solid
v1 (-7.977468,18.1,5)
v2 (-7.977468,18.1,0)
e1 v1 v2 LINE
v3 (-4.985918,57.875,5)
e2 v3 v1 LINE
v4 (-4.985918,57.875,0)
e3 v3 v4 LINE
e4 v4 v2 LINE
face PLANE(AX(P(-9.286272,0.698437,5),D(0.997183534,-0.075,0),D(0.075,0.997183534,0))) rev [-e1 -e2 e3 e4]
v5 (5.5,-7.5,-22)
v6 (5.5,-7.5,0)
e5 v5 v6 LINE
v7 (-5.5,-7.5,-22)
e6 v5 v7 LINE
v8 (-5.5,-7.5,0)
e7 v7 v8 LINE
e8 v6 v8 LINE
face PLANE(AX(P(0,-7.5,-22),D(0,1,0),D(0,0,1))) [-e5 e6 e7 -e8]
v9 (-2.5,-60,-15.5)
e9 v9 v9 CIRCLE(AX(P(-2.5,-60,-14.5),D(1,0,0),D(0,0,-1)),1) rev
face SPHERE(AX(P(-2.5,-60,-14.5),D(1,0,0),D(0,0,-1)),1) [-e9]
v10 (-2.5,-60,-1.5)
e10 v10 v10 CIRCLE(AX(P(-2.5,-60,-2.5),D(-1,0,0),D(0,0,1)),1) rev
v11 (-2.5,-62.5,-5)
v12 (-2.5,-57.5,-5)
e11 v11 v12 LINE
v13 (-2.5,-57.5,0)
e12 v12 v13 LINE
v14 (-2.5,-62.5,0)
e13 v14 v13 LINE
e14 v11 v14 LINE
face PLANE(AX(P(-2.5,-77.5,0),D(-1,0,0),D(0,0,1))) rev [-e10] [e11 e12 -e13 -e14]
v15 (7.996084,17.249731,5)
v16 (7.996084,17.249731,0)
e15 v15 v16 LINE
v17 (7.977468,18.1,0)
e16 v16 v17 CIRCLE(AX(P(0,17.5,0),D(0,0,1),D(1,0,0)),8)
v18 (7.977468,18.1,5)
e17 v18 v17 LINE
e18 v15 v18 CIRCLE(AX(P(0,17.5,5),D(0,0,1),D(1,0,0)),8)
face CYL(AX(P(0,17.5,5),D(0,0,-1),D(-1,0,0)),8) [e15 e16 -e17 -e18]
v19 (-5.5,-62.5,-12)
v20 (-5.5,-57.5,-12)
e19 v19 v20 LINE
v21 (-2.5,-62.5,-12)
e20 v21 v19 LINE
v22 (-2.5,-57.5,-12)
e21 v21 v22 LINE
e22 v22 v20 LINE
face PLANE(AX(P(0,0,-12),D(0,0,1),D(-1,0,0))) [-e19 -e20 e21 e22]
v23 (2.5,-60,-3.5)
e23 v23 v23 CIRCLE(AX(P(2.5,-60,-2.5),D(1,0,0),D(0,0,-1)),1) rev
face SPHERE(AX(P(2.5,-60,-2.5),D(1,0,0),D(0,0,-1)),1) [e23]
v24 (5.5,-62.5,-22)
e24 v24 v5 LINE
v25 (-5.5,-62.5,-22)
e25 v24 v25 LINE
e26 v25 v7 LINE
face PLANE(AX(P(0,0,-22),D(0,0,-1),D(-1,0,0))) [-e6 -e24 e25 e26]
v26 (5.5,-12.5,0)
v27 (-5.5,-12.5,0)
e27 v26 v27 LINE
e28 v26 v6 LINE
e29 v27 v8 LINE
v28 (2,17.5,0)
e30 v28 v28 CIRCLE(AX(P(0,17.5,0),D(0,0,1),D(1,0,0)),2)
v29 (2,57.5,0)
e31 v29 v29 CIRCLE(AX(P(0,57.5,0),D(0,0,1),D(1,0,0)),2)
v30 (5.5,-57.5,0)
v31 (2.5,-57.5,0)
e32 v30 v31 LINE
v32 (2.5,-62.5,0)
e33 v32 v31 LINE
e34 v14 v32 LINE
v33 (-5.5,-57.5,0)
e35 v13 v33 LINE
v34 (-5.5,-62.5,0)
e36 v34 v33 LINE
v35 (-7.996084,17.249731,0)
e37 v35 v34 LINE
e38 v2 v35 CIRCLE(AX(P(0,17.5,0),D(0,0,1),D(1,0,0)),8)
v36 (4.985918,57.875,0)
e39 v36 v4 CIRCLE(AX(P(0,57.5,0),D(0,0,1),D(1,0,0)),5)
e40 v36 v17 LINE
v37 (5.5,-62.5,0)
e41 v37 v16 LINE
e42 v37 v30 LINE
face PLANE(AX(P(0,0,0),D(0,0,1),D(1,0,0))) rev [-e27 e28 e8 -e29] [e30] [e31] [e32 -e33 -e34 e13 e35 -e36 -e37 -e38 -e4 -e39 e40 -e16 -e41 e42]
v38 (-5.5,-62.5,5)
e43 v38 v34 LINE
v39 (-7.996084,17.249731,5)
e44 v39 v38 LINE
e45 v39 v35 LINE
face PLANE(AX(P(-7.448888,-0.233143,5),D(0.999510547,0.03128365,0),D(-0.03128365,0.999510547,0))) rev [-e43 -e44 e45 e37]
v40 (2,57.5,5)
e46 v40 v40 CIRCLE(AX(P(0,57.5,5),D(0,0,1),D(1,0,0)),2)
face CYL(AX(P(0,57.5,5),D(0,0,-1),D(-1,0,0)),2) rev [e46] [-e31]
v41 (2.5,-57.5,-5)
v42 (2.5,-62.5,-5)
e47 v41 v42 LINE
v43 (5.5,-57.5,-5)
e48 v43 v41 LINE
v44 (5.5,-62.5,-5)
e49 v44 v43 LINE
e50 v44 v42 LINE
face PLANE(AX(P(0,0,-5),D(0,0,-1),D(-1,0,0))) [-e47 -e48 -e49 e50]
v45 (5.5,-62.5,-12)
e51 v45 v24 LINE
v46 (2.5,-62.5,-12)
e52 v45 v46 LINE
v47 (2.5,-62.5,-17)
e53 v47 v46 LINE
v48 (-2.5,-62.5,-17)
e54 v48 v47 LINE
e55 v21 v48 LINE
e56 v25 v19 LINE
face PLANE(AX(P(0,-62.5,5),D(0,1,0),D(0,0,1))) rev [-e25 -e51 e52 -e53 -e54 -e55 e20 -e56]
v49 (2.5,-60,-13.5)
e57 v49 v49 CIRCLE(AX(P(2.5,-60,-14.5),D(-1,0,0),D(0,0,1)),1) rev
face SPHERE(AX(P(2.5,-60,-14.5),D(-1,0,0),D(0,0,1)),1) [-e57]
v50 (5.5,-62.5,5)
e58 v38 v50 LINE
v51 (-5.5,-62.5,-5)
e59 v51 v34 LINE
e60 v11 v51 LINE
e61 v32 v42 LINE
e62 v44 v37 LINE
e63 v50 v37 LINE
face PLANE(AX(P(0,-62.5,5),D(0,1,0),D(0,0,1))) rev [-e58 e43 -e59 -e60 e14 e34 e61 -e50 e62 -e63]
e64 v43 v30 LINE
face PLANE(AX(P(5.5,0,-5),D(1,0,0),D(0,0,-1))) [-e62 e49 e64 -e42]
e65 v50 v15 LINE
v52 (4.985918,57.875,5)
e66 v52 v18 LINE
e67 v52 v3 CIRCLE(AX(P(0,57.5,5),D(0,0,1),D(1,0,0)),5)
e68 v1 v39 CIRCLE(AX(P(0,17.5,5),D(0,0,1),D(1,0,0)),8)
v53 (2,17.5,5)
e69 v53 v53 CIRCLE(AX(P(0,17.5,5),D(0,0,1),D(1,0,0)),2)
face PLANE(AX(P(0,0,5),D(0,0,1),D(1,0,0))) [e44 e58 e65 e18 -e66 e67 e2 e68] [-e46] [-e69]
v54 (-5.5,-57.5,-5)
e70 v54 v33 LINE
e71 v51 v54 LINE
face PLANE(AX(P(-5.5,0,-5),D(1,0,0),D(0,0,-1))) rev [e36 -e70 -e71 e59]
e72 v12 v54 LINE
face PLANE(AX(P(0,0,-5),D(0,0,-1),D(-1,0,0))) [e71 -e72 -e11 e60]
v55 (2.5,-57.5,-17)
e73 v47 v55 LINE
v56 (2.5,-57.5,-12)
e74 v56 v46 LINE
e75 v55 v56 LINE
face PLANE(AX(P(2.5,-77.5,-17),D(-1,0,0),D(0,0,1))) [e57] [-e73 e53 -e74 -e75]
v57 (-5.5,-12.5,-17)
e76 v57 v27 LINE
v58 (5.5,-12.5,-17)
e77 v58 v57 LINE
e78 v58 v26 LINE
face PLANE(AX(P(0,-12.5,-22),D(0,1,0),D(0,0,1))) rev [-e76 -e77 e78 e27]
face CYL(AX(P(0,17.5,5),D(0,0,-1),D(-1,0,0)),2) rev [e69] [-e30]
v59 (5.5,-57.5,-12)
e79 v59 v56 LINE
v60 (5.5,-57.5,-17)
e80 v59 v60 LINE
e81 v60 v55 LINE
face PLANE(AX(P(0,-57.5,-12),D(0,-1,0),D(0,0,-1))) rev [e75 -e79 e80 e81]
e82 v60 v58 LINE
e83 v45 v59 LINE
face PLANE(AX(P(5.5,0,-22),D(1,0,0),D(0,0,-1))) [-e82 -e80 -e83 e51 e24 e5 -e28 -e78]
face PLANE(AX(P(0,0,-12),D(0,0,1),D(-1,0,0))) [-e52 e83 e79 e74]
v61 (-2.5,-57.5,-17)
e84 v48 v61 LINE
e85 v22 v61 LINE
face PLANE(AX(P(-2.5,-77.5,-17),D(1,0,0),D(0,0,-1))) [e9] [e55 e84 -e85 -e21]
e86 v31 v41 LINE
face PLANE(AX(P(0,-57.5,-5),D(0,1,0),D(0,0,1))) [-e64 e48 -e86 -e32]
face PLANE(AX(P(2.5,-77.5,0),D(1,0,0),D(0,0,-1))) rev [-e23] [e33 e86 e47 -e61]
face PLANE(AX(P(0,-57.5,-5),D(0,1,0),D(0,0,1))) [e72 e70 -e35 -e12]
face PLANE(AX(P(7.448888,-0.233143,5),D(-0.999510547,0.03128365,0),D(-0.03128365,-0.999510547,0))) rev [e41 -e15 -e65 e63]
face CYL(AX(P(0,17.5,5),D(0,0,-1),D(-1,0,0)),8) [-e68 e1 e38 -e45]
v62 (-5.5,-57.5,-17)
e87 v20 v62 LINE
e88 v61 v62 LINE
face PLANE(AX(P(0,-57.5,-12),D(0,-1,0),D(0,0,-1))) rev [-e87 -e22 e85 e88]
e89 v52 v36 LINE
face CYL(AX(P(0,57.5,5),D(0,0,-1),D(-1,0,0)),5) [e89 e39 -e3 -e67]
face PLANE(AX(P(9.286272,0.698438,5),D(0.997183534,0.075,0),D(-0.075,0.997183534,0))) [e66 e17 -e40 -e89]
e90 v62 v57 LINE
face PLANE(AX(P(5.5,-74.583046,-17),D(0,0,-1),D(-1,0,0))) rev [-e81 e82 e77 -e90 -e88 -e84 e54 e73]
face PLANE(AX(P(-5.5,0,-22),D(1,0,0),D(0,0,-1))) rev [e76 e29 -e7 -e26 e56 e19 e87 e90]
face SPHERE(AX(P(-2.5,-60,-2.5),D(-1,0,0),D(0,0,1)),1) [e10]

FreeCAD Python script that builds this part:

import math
import FreeCAD as App
import Part
import Sketcher

V = App.Vector


def add_polygon(sketch, points):
    """Adds a closed chain of lines whose ends are joined by coincident constraints."""
    first, n = sketch.GeometryCount, len(points)
    for a, b in zip(points, points[1:] + points[:1]):
        sketch.addGeometry(Part.LineSegment(App.Vector(*a, 0), App.Vector(*b, 0)), False)
    for i in range(n):
        sketch.addConstraint(Sketcher.Constraint("Coincident", first + i, 2, first + (i + 1) % n, 1))

doc = App.newDocument("Part")
body = doc.addObject("PartDesign::Body", "Body")

# Sketch on XY plane
sketch1 = doc.addObject("Sketcher::SketchObject", "Sketch")
body.addObject(sketch1)
sketch1.AttachmentSupport = (doc.XY_Plane, [""])
sketch1.MapMode = "FlatFace"
sketch1.addGeometry(Part.LineSegment(V(-7.996084, 17.249731, 0), V(-5.5, -62.5, 0)), False)
sketch1.addGeometry(Part.LineSegment(V(-5.5, -62.5, 0), V(5.5, -62.5, 0)), False)
sketch1.addGeometry(Part.LineSegment(V(5.5, -62.5, 0), V(7.996084, 17.249731, 0)), False)
sketch1.addGeometry(Part.ArcOfCircle(Part.Circle(V(0.000001, 17.5, 0), V(0, 0, 1), 7.999999), math.radians(-1.792714), math.radians(0)), False)
sketch1.addGeometry(Part.ArcOfCircle(Part.Circle(V(0, 17.5, 0), V(0, 0, 1), 8), math.radians(0), math.radians(4.301222)), False)
sketch1.addGeometry(Part.LineSegment(V(7.977468, 18.1, 0), V(4.985918, 57.875, 0)), False)
sketch1.addGeometry(Part.ArcOfCircle(Part.Circle(V(0, 57.5, 0), V(0, 0, 1), 5), math.radians(4.301222), math.radians(175.698778)), False)
sketch1.addGeometry(Part.LineSegment(V(-4.985918, 57.875, 0), V(-7.977468, 18.1, 0)), False)
sketch1.addGeometry(Part.ArcOfCircle(Part.Circle(V(0, 17.5, 0), V(0, 0, 1), 8), math.radians(175.698778), math.radians(181.792714)), False)
sketch1.addGeometry(Part.Circle(V(0, 17.5, 0), V(0, 0, 1), 2), False)
sketch1.addGeometry(Part.Circle(V(0, 57.5, 0), V(0, 0, 1), 2), False)
sketch1.addConstraint(Sketcher.Constraint("Coincident", 0, 2, 1, 1))
sketch1.addConstraint(Sketcher.Constraint("Coincident", 1, 2, 2, 1))
sketch1.addConstraint(Sketcher.Constraint("Tangent", 2, 2, 3, 1))
sketch1.addConstraint(Sketcher.Constraint("Tangent", 3, 2, 4, 1))
sketch1.addConstraint(Sketcher.Constraint("Tangent", 4, 2, 5, 1))
sketch1.addConstraint(Sketcher.Constraint("Tangent", 5, 2, 6, 1))
sketch1.addConstraint(Sketcher.Constraint("Tangent", 6, 2, 7, 1))
sketch1.addConstraint(Sketcher.Constraint("Tangent", 7, 2, 8, 1))
sketch1.addConstraint(Sketcher.Constraint("Tangent", 8, 2, 0, 1))
sketch1.addConstraint(Sketcher.Constraint("Horizontal", 1))
sketch1.addConstraint(Sketcher.Constraint("Coincident", 8, 3, 3, 3))
sketch1.addConstraint(Sketcher.Constraint("Coincident", 9, 3, 3, 3))
sketch1.addConstraint(Sketcher.Constraint("Coincident", 10, 3, 6, 3))
sketch1.addConstraint(Sketcher.Constraint("Equal", 3, 4))
sketch1.addConstraint(Sketcher.Constraint("Equal", 4, 8))
sketch1.addConstraint(Sketcher.Constraint("Equal", 9, 10))
sketch1.addConstraint(Sketcher.Constraint("Symmetric", 5, 2, 6, 2, -2))
sketch1.addConstraint(Sketcher.Constraint("Horizontal", 9, 3, 3, 2))
sketch1.addConstraint(Sketcher.Constraint("Horizontal", 2, 2, 8, 2))
sketch1.addConstraint(Sketcher.Constraint("Diameter", 9, 4.0))
sketch1.addConstraint(Sketcher.Constraint("Radius", 3, 7.999999))
sketch1.addConstraint(Sketcher.Constraint("Radius", 6, 5.0))
sketch1.addConstraint(Sketcher.Constraint("DistanceX", 1, 1, 1, 2, 11.0))
sketch1.addConstraint(Sketcher.Constraint("DistanceY", 4, 3, 6, 3, 40.0))
sketch1.addConstraint(Sketcher.Constraint("DistanceY", 0, 2, 9, 3, 80.0))
sketch1.addConstraint(Sketcher.Constraint("DistanceY", -1, 1, 3, 3, 17.5))
pad1 = doc.addObject("PartDesign::Pad", "Pad")
body.addObject(pad1)
pad1.Profile = sketch1
pad1.Length = 5

# Sketch on XY plane
sketch2 = doc.addObject("Sketcher::SketchObject", "Sketch001")
body.addObject(sketch2)
sketch2.AttachmentSupport = (doc.XY_Plane, [""])
sketch2.MapMode = "FlatFace"
add_polygon(sketch2, [(5.5, -57.5), (5.5, -62.5), (-5.5, -62.5), (-5.5, -57.5)])  # lines 0-3
sketch2.addConstraint(Sketcher.Constraint("Vertical", 0))
sketch2.addConstraint(Sketcher.Constraint("Horizontal", 1))
sketch2.addConstraint(Sketcher.Constraint("Vertical", 2))
sketch2.addConstraint(Sketcher.Constraint("Horizontal", 3))
sketch2.addConstraint(Sketcher.Constraint("DistanceX", 1, 2, 1, 1, 11.0))
sketch2.addConstraint(Sketcher.Constraint("DistanceY", 0, 2, 0, 1, 5.0))
sketch2.addConstraint(Sketcher.Constraint("DistanceX", -1, 1, 0, 2, 5.5))
sketch2.addConstraint(Sketcher.Constraint("DistanceY", 0, 2, -1, 1, 62.5))
pad2 = doc.addObject("PartDesign::Pad", "Pad001")
body.addObject(pad2)
pad2.Profile = sketch2
pad2.Length = 5
pad2.Reversed = True

# Sketch on XY plane
sketch3 = doc.addObject("Sketcher::SketchObject", "Sketch002")
body.addObject(sketch3)
sketch3.AttachmentSupport = (doc.XY_Plane, [""])
sketch3.MapMode = "FlatFace"
add_polygon(sketch3, [(5.5, -7.5), (5.5, -12.5), (-5.5, -12.5), (-5.5, -7.5)])  # lines 0-3
sketch3.addConstraint(Sketcher.Constraint("Vertical", 0))
sketch3.addConstraint(Sketcher.Constraint("Horizontal", 1))
sketch3.addConstraint(Sketcher.Constraint("Vertical", 2))
sketch3.addConstraint(Sketcher.Constraint("Horizontal", 3))
sketch3.addConstraint(Sketcher.Constraint("DistanceX", 1, 2, 1, 1, 11.0))
sketch3.addConstraint(Sketcher.Constraint("DistanceY", 0, 2, 0, 1, 5.0))
sketch3.addConstraint(Sketcher.Constraint("DistanceX", -1, 1, 0, 2, 5.5))
sketch3.addConstraint(Sketcher.Constraint("DistanceY", 0, 2, -1, 1, 12.5))
pad3 = doc.addObject("PartDesign::Pad", "Pad002")
body.addObject(pad3)
pad3.Profile = sketch3
pad3.Length = 22
pad3.Reversed = True

# Sketch on XZ plane
sketch4 = doc.addObject("Sketcher::SketchObject", "Sketch003")
body.addObject(sketch4)
sketch4.AttachmentSupport = (doc.XZ_Plane, [""])
sketch4.MapMode = "FlatFace"
sketch4.AttachmentOffset = App.Placement(V(0, 0, 57.5), App.Rotation())
add_polygon(sketch4, [(-2.5, -5), (-2.5, 0), (2.5, 0), (2.5, -5)])  # lines 0-3
sketch4.addConstraint(Sketcher.Constraint("Vertical", 0))
sketch4.addConstraint(Sketcher.Constraint("Horizontal", 1))
sketch4.addConstraint(Sketcher.Constraint("Vertical", 2))
sketch4.addConstraint(Sketcher.Constraint("Horizontal", 3))
sketch4.addConstraint(Sketcher.Constraint("Symmetric", 0, 2, 1, 2, -1, 1))
sketch4.addConstraint(Sketcher.Constraint("Equal", 3, 0))
sketch4.addConstraint(Sketcher.Constraint("DistanceX", 1, 1, 1, 2, 5.0))
pocket1 = doc.addObject("PartDesign::Pocket", "Pocket")
body.addObject(pocket1)
pocket1.Profile = sketch4
pocket1.Length = 20
pocket1.Reversed = True

# Sketch on YZ plane
sketch5 = doc.addObject("Sketcher::SketchObject", "Sketch004")
body.addObject(sketch5)
sketch5.AttachmentSupport = (doc.YZ_Plane, [""])
sketch5.MapMode = "FlatFace"
sketch5.AttachmentOffset = App.Placement(V(0, 0, 2.5), App.Rotation())
sketch5.addGeometry(Part.LineSegment(V(-60, -1.5, 0), V(-60, -3.5, 0)), False)
sketch5.addGeometry(Part.ArcOfCircle(Part.Circle(V(-60, -2.5, 0), V(0, 0, 1), 1), math.radians(90), math.radians(270)), False)
sketch5.addGeometry(Part.LineSegment(V(-60, -1.5, 0), V(-60, -3.5, 0)), True)  # axis
sketch5.addConstraint(Sketcher.Constraint("Coincident", 0, 1, 1, 1))
sketch5.addConstraint(Sketcher.Constraint("Coincident", 1, 2, 0, 2))
sketch5.addConstraint(Sketcher.Constraint("Vertical", 0))
sketch5.addConstraint(Sketcher.Constraint("Vertical", 2))
sketch5.addConstraint(Sketcher.Constraint("Coincident", 2, 1, 0, 1))
sketch5.addConstraint(Sketcher.Constraint("Vertical", 1, 3, 0, 1))
sketch5.addConstraint(Sketcher.Constraint("Equal", 0, 2))
sketch5.addConstraint(Sketcher.Constraint("Radius", 1, 1.0))
sketch5.addConstraint(Sketcher.Constraint("DistanceX", 1, 3, -1, 1, 60.0))
sketch5.addConstraint(Sketcher.Constraint("DistanceY", 1, 3, -1, 1, 2.5))
revolution = doc.addObject("PartDesign::Revolution", "Revolution")
body.addObject(revolution)
revolution.Profile = sketch5
revolution.ReferenceAxis = (sketch5, ["Axis0"])
revolution.Angle = 360
doc.recompute()

mirrored = doc.addObject("PartDesign::Mirrored", "Mirrored")
body.addObject(mirrored)
mirrored.Originals = [revolution]
mirrored.MirrorPlane = (doc.YZ_Plane, [""])
body.Tip = mirrored

# Sketch on XZ plane
sketch6 = doc.addObject("Sketcher::SketchObject", "Sketch005")
body.addObject(sketch6)
sketch6.AttachmentSupport = (doc.XZ_Plane, [""])
sketch6.MapMode = "FlatFace"
sketch6.AttachmentOffset = App.Placement(V(0, 0, 12.5), App.Rotation())
add_polygon(sketch6, [(5.5, -22), (5.5, -17), (-5.5, -17), (-5.5, -22)])  # lines 0-3
sketch6.addConstraint(Sketcher.Constraint("Vertical", 0))
sketch6.addConstraint(Sketcher.Constraint("Horizontal", 1))
sketch6.addConstraint(Sketcher.Constraint("Vertical", 2))
sketch6.addConstraint(Sketcher.Constraint("Horizontal", 3))
sketch6.addConstraint(Sketcher.Constraint("DistanceX", 1, 2, 1, 1, 11.0))
sketch6.addConstraint(Sketcher.Constraint("DistanceY", 0, 1, 0, 2, 5.0))
sketch6.addConstraint(Sketcher.Constraint("DistanceY", 0, 2, -1, 1, 17.0))
sketch6.addConstraint(Sketcher.Constraint("DistanceX", -1, 1, 0, 2, 5.5))
pad4 = doc.addObject("PartDesign::Pad", "Pad003")
body.addObject(pad4)
pad4.Profile = sketch6
pad4.Length = 50
doc.recompute()

datumplane = doc.addObject("PartDesign::Plane", "DatumPlane")
body.addObject(datumplane)
datumplane.AttachmentSupport = (doc.XY_Plane, [""])
datumplane.MapMode = "FlatFace"
datumplane.AttachmentOffset = App.Placement(V(0, 0, -8.5), App.Rotation())
mirrored2 = doc.addObject("PartDesign::Mirrored", "Mirrored001")
body.addObject(mirrored2)
mirrored2.Originals = [pad2, pocket1, revolution]
mirrored2.MirrorPlane = (datumplane, [""])
body.Tip = mirrored2

# Sketch on YZ plane
sketch7 = doc.addObject("Sketcher::SketchObject", "Sketch006")
body.addObject(sketch7)
sketch7.AttachmentSupport = (doc.YZ_Plane, [""])
sketch7.MapMode = "FlatFace"
sketch7.AttachmentOffset = App.Placement(V(0, 0, -2.5), App.Rotation())
sketch7.addGeometry(Part.LineSegment(V(-60, -15.5, 0), V(-60, -13.5, 0)), False)
sketch7.addGeometry(Part.ArcOfCircle(Part.Circle(V(-60, -14.5, 0), V(0, 0, 1), 1), math.radians(90), math.radians(270)), False)
sketch7.addGeometry(Part.LineSegment(V(-60, -15.5, 0), V(-60, -13.5, 0)), True)  # axis
sketch7.addConstraint(Sketcher.Constraint("Coincident", 0, 1, 1, 2))
sketch7.addConstraint(Sketcher.Constraint("Coincident", 1, 1, 0, 2))
sketch7.addConstraint(Sketcher.Constraint("Vertical", 0))
sketch7.addConstraint(Sketcher.Constraint("Vertical", 2))
sketch7.addConstraint(Sketcher.Constraint("Coincident", 2, 1, 0, 1))
sketch7.addConstraint(Sketcher.Constraint("Vertical", 1, 3, 0, 1))
sketch7.addConstraint(Sketcher.Constraint("Equal", 0, 2))
sketch7.addConstraint(Sketcher.Constraint("Radius", 1, 1.0))
sketch7.addConstraint(Sketcher.Constraint("DistanceX", 1, 3, -1, 1, 60.0))
sketch7.addConstraint(Sketcher.Constraint("DistanceY", 1, 3, -1, 1, 14.5))
revolution2 = doc.addObject("PartDesign::Revolution", "Revolution001")
body.addObject(revolution2)
revolution2.Profile = sketch7
revolution2.ReferenceAxis = (sketch7, ["Axis0"])
revolution2.Angle = 360

doc.recompute()
